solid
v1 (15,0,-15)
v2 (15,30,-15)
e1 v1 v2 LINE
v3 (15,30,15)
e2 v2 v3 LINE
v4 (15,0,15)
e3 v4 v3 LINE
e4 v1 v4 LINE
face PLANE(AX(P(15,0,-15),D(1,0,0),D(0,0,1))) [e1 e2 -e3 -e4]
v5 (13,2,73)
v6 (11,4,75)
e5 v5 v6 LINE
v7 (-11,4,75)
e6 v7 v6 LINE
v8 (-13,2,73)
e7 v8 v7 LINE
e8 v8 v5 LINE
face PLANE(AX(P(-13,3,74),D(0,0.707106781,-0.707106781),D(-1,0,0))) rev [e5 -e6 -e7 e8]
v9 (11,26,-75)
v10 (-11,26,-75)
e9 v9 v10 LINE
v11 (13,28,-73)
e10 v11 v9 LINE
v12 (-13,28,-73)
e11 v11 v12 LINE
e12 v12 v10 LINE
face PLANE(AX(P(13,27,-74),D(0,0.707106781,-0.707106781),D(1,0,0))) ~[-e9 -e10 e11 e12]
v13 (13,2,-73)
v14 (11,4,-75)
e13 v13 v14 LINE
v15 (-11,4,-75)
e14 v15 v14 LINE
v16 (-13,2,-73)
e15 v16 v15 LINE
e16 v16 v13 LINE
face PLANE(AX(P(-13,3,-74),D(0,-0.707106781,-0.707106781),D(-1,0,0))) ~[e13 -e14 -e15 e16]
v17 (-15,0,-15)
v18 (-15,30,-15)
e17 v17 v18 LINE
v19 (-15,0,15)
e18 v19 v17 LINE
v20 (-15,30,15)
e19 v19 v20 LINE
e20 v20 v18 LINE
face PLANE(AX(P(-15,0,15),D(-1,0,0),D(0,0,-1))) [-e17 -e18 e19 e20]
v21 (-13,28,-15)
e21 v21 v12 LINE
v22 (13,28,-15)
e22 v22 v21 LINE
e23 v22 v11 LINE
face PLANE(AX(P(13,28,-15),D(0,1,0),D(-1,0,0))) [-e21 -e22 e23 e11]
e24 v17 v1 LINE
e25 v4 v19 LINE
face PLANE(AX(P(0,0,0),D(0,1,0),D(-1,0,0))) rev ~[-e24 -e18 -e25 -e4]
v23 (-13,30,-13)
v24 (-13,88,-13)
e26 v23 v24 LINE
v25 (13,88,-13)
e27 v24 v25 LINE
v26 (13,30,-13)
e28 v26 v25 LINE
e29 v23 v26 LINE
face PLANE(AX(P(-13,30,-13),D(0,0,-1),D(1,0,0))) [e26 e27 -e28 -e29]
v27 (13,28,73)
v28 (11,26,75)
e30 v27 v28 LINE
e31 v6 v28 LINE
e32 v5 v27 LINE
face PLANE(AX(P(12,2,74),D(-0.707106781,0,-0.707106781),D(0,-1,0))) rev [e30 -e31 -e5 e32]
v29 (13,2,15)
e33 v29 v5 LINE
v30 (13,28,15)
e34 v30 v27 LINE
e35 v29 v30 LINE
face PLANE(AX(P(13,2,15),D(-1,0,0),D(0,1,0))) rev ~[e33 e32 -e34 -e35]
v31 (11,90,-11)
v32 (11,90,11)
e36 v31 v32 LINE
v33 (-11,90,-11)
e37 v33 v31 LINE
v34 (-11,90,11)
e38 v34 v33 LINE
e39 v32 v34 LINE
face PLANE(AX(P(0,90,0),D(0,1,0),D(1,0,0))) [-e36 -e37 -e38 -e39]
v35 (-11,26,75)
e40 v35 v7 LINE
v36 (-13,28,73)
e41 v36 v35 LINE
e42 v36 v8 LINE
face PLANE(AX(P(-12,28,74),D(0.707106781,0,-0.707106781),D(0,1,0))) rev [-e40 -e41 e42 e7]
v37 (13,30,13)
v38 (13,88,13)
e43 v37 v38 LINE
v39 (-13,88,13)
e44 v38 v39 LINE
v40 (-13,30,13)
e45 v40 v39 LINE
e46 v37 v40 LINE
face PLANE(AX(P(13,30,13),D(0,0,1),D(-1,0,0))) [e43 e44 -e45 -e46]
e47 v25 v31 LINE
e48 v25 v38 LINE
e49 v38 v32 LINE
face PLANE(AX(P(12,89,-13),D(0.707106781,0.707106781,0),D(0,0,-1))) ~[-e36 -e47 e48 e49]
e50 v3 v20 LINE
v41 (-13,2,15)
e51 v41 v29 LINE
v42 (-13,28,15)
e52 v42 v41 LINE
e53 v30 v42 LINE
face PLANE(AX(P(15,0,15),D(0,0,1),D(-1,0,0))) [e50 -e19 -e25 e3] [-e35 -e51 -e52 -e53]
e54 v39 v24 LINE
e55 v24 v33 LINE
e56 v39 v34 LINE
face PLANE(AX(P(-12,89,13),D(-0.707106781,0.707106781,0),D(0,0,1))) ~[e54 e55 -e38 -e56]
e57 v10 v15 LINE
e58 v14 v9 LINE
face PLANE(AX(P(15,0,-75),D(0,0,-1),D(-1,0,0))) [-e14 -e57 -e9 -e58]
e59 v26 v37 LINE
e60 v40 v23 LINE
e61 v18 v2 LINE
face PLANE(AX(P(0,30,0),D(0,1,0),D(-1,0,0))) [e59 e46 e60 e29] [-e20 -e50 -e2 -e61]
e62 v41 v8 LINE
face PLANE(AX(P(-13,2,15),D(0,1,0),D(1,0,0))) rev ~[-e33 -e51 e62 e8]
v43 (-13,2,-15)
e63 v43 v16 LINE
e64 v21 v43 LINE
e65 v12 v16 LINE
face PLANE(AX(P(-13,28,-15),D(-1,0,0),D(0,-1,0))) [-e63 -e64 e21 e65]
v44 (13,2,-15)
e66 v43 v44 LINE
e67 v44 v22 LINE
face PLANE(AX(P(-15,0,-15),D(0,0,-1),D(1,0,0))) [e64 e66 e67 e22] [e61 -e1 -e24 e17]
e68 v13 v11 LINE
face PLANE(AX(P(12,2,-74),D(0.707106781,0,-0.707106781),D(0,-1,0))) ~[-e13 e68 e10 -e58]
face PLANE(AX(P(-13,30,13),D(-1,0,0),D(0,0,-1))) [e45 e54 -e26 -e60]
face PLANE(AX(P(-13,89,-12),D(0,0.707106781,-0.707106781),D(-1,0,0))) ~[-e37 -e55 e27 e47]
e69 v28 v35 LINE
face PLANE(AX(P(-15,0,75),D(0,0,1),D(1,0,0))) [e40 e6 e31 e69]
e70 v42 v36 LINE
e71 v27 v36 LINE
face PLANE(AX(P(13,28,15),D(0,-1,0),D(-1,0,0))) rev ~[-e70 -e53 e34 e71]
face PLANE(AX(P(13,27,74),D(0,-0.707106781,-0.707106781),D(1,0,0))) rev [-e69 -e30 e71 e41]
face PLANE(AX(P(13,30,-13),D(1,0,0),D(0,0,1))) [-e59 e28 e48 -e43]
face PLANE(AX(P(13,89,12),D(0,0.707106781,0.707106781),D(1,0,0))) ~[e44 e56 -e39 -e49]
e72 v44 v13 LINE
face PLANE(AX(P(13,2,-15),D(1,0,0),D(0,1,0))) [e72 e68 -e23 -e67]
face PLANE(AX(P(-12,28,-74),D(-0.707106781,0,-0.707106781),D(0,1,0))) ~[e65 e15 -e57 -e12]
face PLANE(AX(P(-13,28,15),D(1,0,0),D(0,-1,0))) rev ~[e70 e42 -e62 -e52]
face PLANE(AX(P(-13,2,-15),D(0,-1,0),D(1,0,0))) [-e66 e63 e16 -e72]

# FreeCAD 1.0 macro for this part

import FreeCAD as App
import Part
import Sketcher

V = App.Vector
Q = App.Units.Quantity


def edges_at(feature, points):
    """Names of the edges that pass closest to the given points."""
    edges = feature.Shape.Edges
    near = lambda p: min(range(len(edges)), key=lambda i: edges[i].distToShape(Part.Vertex(*p))[0])
    return sorted({f"Edge{near(p) + 1}" for p in points})

doc = App.newDocument("Part")
body = doc.addObject("PartDesign::Body", "Body")

sketch1 = body.newObject("Sketcher::SketchObject", "Sketch")
sketch1.AttachmentSupport = (doc.getObject("XZ_Plane"), [""])
sketch1.MapMode = "FlatFace"
sketch1.addGeometry([
    Part.LineSegment(V(-15, 15, 0), V(15, 15, 0)),
    Part.LineSegment(V(15, 15, 0), V(15, -15, 0)),
    Part.LineSegment(V(15, -15, 0), V(-15, -15, 0)),
    Part.LineSegment(V(-15, -15, 0), V(-15, 15, 0)),
], False)
sketch1.addConstraint([
    Sketcher.Constraint("Coincident", 0, 2, 1, 1),
    Sketcher.Constraint("Coincident", 1, 2, 2, 1),
    Sketcher.Constraint("Coincident", 2, 2, 3, 1),
    Sketcher.Constraint("Coincident", 3, 2, 0, 1),
    Sketcher.Constraint("Horizontal", 0),
    Sketcher.Constraint("Vertical", 1),
    Sketcher.Constraint("Horizontal", 2),
    Sketcher.Constraint("Vertical", 3),
    Sketcher.Constraint("Symmetric", 0, 2, 2, 2, -1, 1),
    Sketcher.Constraint("Equal", 2, 1),
    Sketcher.Constraint("DistanceX", 0, 1, 0, 2, Q("30 mm")),
])
pad1 = body.newObject("PartDesign::Pad", "Pad")
pad1.Profile = sketch1
pad1.Length = 30
pad1.Reversed = True

sketch2 = body.newObject("Sketcher::SketchObject", "Sketch001")
sketch2.AttachmentSupport = (doc.getObject("XZ_Plane"), [""])
sketch2.MapMode = "FlatFace"
sketch2.AttachmentOffset = App.Placement(V(0, 0, -30), App.Rotation())
sketch2.addGeometry([
    Part.LineSegment(V(-13, 13, 0), V(13, 13, 0)),
    Part.LineSegment(V(13, 13, 0), V(13, -13, 0)),
    Part.LineSegment(V(13, -13, 0), V(-13, -13, 0)),
    Part.LineSegment(V(-13, -13, 0), V(-13, 13, 0)),
], False)
sketch2.addConstraint([
    Sketcher.Constraint("Coincident", 0, 2, 1, 1),
    Sketcher.Constraint("Coincident", 1, 2, 2, 1),
    Sketcher.Constraint("Coincident", 2, 2, 3, 1),
    Sketcher.Constraint("Coincident", 3, 2, 0, 1),
    Sketcher.Constraint("Horizontal", 0),
    Sketcher.Constraint("Vertical", 1),
    Sketcher.Constraint("Horizontal", 2),
    Sketcher.Constraint("Vertical", 3),
    Sketcher.Constraint("Symmetric", 0, 2, 2, 2, -1, 1),
    Sketcher.Constraint("Equal", 2, 1),
    Sketcher.Constraint("DistanceX", 0, 1, 0, 2, Q("26 mm")),
])
pad2 = body.newObject("PartDesign::Pad", "Pad001")
pad2.Profile = sketch2
pad2.Length = 60
pad2.Reversed = True

sketch3 = body.newObject("Sketcher::SketchObject", "Sketch002")
sketch3.AttachmentSupport = (doc.getObject("XY_Plane"), [""])
sketch3.MapMode = "FlatFace"
sketch3.AttachmentOffset = App.Placement(V(0, 0, -15), App.Rotation())
sketch3.addGeometry([
    Part.LineSegment(V(13, 2, 0), V(-13, 2, 0)),
    Part.LineSegment(V(-13, 2, 0), V(-13, 28, 0)),
    Part.LineSegment(V(-13, 28, 0), V(13, 28, 0)),
    Part.LineSegment(V(13, 28, 0), V(13, 2, 0)),
], False)
sketch3.addConstraint([
    Sketcher.Constraint("Coincident", 0, 2, 1, 1),
    Sketcher.Constraint("Coincident", 1, 2, 2, 1),
    Sketcher.Constraint("Coincident", 2, 2, 3, 1),
    Sketcher.Constraint("Coincident", 3, 2, 0, 1),
    Sketcher.Constraint("Horizontal", 0),
    Sketcher.Constraint("Vertical", 1),
    Sketcher.Constraint("Horizontal", 2),
    Sketcher.Constraint("Vertical", 3),
    Sketcher.Constraint("Equal", 2, 1),
    Sketcher.Constraint("DistanceX", 0, 2, 0, 1, Q("26 mm")),
    Sketcher.Constraint("DistanceX", 0, 2, -1, 1, Q("13 mm")),
    Sketcher.Constraint("DistanceY", -1, 1, 0, 2, Q("2 mm")),
])
pad3 = body.newObject("PartDesign::Pad", "Pad002")
pad3.Profile = sketch3
pad3.Length = 60
pad3.Reversed = True

sketch4 = body.newObject("Sketcher::SketchObject", "Sketch003")
sketch4.AttachmentSupport = (doc.getObject("XY_Plane"), [""])
sketch4.MapMode = "FlatFace"
sketch4.AttachmentOffset = App.Placement(V(0, 0, 15), App.Rotation())
sketch4.addGeometry([
    Part.LineSegment(V(13, 2, 0), V(13, 28, 0)),
    Part.LineSegment(V(13, 28, 0), V(-13, 28, 0)),
    Part.LineSegment(V(-13, 28, 0), V(-13, 2, 0)),
    Part.LineSegment(V(-13, 2, 0), V(13, 2, 0)),
], False)
sketch4.addConstraint([
    Sketcher.Constraint("Coincident", 0, 2, 1, 1),
    Sketcher.Constraint("Coincident", 1, 2, 2, 1),
    Sketcher.Constraint("Coincident", 2, 2, 3, 1),
    Sketcher.Constraint("Coincident", 3, 2, 0, 1),
    Sketcher.Constraint("Vertical", 0),
    Sketcher.Constraint("Horizontal", 1),
    Sketcher.Constraint("Vertical", 2),
    Sketcher.Constraint("Horizontal", 3),
    Sketcher.Constraint("Equal", 3, 0),
    Sketcher.Constraint("DistanceX", 1, 2, 1, 1, Q("26 mm")),
    Sketcher.Constraint("DistanceX", -1, 1, 0, 2, Q("13 mm")),
    Sketcher.Constraint("DistanceY", -1, 1, 0, 2, Q("28 mm")),
])
pad4 = body.newObject("PartDesign::Pad", "Pad003")
pad4.Profile = sketch4
pad4.Length = 60
doc.recompute()

chamfer = body.newObject("PartDesign::Chamfer", "Chamfer")
chamfer.Base = (pad4, edges_at(pad4, [
    (13, 15, -75),
    (-13, 15, -75),
    (0, 28, -75),
    (0, 2, -75),
]))
chamfer.Size = 2
doc.recompute()

chamfer2 = body.newObject("PartDesign::Chamfer", "Chamfer001")
chamfer2.Base = (chamfer, edges_at(chamfer, [
    (-13, 15, 75),
    (13, 15, 75),
    (0, 28, 75),
    (0, 2, 75),
]))
chamfer2.Size = 2
doc.recompute()

chamfer3 = body.newObject("PartDesign::Chamfer", "Chamfer002")
chamfer3.Base = (chamfer2, edges_at(chamfer2, [
    (-13, 90, 0),
    (0, 90, -13),
    (13, 90, 0),
    (0, 90, 13),
]))
chamfer3.Size = 2

doc.recompute()
